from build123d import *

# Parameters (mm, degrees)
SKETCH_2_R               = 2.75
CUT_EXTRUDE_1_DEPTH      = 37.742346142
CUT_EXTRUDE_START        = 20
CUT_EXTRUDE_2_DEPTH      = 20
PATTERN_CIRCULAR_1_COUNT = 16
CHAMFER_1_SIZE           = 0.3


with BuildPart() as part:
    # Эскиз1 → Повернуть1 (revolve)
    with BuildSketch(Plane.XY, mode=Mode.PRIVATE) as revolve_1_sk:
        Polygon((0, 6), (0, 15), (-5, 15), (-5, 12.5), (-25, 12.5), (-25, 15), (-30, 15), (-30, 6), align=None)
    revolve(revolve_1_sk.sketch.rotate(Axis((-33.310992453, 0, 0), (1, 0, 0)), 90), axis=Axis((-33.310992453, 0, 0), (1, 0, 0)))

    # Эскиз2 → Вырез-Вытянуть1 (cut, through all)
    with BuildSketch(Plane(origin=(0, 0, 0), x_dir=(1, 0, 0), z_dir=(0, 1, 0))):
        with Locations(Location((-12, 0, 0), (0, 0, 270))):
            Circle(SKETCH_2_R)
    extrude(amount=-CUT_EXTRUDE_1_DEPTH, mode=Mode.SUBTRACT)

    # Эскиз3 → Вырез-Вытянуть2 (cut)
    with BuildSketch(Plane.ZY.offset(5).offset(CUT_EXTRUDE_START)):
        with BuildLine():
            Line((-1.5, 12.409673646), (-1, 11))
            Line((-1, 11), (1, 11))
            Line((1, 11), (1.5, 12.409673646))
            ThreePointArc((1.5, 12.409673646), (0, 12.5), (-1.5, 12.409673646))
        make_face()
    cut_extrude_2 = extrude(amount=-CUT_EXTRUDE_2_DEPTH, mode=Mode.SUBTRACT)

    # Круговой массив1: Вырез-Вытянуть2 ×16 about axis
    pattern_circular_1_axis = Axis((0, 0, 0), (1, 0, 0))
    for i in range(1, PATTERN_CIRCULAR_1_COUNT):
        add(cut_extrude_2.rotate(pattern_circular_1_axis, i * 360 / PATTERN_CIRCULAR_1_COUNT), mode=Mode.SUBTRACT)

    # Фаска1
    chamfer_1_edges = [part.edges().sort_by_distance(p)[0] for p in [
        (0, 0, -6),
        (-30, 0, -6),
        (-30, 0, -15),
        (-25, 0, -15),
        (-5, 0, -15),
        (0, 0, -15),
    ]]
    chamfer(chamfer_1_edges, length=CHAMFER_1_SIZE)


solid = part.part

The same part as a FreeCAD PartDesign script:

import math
import FreeCAD as App
import Part
import Sketcher

V = App.Vector
Q = App.Units.Quantity


def edges_at(feature, points):
    """Names of the edges that pass closest to the given points."""
    edges = feature.Shape.Edges
    near = lambda p: min(range(len(edges)), key=lambda i: edges[i].distToShape(Part.Vertex(*p))[0])
    return sorted({f"Edge{near(p) + 1}" for p in points})


def add_polygon(sketch, points):
    """Adds a closed chain of lines whose ends are joined by coincident constraints."""
    first, n = sketch.GeometryCount, len(points)
    for a, b in zip(points, points[1:] + points[:1]):
        sketch.addGeometry(Part.LineSegment(App.Vector(*a, 0), App.Vector(*b, 0)), False)
    for i in range(n):
        sketch.addConstraint(Sketcher.Constraint("Coincident", first + i, 2, first + (i + 1) % n, 1))

doc = App.newDocument("Part")
body = doc.addObject("PartDesign::Body", "Body")

sketch1 = body.newObject("Sketcher::SketchObject", "Sketch")
sketch1.AttachmentSupport = (doc.getObject("XY_Plane"), [""])
sketch1.MapMode = "FlatFace"
add_polygon(sketch1, [(0, 6), (0, 15), (-5, 15), (-5, 12.5), (-25, 12.5), (-25, 15), (-30, 15), (-30, 6)])
sketch1.addConstraint([
    Sketcher.Constraint("Vertical", 0),
    Sketcher.Constraint("Horizontal", 1),
    Sketcher.Constraint("Vertical", 2),
    Sketcher.Constraint("Horizontal", 3),
    Sketcher.Constraint("Vertical", 4),
    Sketcher.Constraint("Horizontal", 5),
    Sketcher.Constraint("Vertical", 6),
    Sketcher.Constraint("Horizontal", 7),
    Sketcher.Constraint("PointOnObject", 0, 2, -2),
    Sketcher.Constraint("Horizontal", 1, 2, 4, 2),
    Sketcher.Constraint("Equal", 1, 5),
    Sketcher.Constraint("DistanceX", 1, 2, 1, 1, Q("5 mm")),
    Sketcher.Constraint("DistanceX", 3, 2, 3, 1, Q("20 mm")),
    Sketcher.Constraint("DistanceY", 0, 1, 0, 2, Q("9 mm")),
    Sketcher.Constraint("DistanceY", 2, 2, 2, 1, Q("2.5 mm")),
    Sketcher.Constraint("DistanceY", -1, 1, 0, 2, Q("15 mm")),
])
revolution = body.newObject("PartDesign::Revolution", "Revolution")
revolution.Profile = sketch1
revolution.ReferenceAxis = (sketch1, ["H_Axis"])
revolution.Angle = 360

sketch2 = body.newObject("Sketcher::SketchObject", "Sketch001")
sketch2.AttachmentSupport = (doc.getObject("XZ_Plane"), [""])
sketch2.MapMode = "FlatFace"
sketch2.addGeometry(Part.Circle(V(-12, 0, 0), V(0, 0, 1), 2.8), False)
sketch2.addConstraint([
    Sketcher.Constraint("PointOnObject", 0, 3, -1),
    Sketcher.Constraint("Diameter", 0, Q("5.5 mm")),
    Sketcher.Constraint("DistanceX", 0, 3, -1, 1, Q("12 mm")),
])
pocket1 = body.newObject("PartDesign::Pocket", "Pocket")
pocket1.Profile = sketch2
pocket1.Type = "ThroughAll"
pocket1.Reversed = True

sketch3 = body.newObject("Sketcher::SketchObject", "Sketch002")
sketch3.AttachmentSupport = (doc.getObject("YZ_Plane"), [""])
sketch3.MapMode = "FlatFace"
sketch3.AttachmentOffset = App.Placement(V(0, 0, -25), App.Rotation())
sketch3.addGeometry([
    Part.LineSegment(V(12.4, -1.5, 0), V(11, -1, 0)),
    Part.LineSegment(V(11, -1, 0), V(11, 1, 0)),
    Part.LineSegment(V(11, 1, 0), V(12.4, 1.5, 0)),
    Part.ArcOfCircle(Part.Circle(V(0, 0, 0), V(0, 0, 1), 12.5), math.radians(-6.89), math.radians(6.89)),
], False)
sketch3.addConstraint([
    Sketcher.Constraint("Coincident", 0, 2, 1, 1),
    Sketcher.Constraint("Coincident", 1, 2, 2, 1),
    Sketcher.Constraint("Coincident", 2, 2, 3, 2),
    Sketcher.Constraint("Coincident", 3, 1, 0, 1),
    Sketcher.Constraint("Vertical", 1),
    Sketcher.Constraint("Coincident", 3, 3, -1, 1),
    Sketcher.Constraint("Vertical", 2, 2, 3, 1),
    Sketcher.Constraint("Equal", 0, 2),
    Sketcher.Constraint("Radius", 3, Q("12.5 mm")),
    Sketcher.Constraint("DistanceY", 1, 1, 1, 2, Q("2 mm")),
    Sketcher.Constraint("DistanceX", -1, 1, 0, 2, Q("11 mm")),
    Sketcher.Constraint("DistanceY", 3, 1, 2, 2, Q("3 mm")),
])
pocket2 = body.newObject("PartDesign::Pocket", "Pocket001")
pocket2.Profile = sketch3
pocket2.Length = 20
pocket2.Reversed = True
doc.recompute()

polarpattern = body.newObject("PartDesign::PolarPattern", "PolarPattern")
polarpattern.Originals = [pocket2]
polarpattern.Axis = (doc.getObject("X_Axis"), [""])
polarpattern.Angle = 360
polarpattern.Occurrences = 16
body.Tip = polarpattern
doc.recompute()

chamfer = body.newObject("PartDesign::Chamfer", "Chamfer")
chamfer.Base = (polarpattern, edges_at(polarpattern, [
    (0, 0, -6),
    (-30, 0, -6),
    (-30, 0, -15),
    (-25, 0, -15),
    (-5, 0, -15),
    (0, 0, -15),
]))
chamfer.Size = 0.3

doc.recompute()
